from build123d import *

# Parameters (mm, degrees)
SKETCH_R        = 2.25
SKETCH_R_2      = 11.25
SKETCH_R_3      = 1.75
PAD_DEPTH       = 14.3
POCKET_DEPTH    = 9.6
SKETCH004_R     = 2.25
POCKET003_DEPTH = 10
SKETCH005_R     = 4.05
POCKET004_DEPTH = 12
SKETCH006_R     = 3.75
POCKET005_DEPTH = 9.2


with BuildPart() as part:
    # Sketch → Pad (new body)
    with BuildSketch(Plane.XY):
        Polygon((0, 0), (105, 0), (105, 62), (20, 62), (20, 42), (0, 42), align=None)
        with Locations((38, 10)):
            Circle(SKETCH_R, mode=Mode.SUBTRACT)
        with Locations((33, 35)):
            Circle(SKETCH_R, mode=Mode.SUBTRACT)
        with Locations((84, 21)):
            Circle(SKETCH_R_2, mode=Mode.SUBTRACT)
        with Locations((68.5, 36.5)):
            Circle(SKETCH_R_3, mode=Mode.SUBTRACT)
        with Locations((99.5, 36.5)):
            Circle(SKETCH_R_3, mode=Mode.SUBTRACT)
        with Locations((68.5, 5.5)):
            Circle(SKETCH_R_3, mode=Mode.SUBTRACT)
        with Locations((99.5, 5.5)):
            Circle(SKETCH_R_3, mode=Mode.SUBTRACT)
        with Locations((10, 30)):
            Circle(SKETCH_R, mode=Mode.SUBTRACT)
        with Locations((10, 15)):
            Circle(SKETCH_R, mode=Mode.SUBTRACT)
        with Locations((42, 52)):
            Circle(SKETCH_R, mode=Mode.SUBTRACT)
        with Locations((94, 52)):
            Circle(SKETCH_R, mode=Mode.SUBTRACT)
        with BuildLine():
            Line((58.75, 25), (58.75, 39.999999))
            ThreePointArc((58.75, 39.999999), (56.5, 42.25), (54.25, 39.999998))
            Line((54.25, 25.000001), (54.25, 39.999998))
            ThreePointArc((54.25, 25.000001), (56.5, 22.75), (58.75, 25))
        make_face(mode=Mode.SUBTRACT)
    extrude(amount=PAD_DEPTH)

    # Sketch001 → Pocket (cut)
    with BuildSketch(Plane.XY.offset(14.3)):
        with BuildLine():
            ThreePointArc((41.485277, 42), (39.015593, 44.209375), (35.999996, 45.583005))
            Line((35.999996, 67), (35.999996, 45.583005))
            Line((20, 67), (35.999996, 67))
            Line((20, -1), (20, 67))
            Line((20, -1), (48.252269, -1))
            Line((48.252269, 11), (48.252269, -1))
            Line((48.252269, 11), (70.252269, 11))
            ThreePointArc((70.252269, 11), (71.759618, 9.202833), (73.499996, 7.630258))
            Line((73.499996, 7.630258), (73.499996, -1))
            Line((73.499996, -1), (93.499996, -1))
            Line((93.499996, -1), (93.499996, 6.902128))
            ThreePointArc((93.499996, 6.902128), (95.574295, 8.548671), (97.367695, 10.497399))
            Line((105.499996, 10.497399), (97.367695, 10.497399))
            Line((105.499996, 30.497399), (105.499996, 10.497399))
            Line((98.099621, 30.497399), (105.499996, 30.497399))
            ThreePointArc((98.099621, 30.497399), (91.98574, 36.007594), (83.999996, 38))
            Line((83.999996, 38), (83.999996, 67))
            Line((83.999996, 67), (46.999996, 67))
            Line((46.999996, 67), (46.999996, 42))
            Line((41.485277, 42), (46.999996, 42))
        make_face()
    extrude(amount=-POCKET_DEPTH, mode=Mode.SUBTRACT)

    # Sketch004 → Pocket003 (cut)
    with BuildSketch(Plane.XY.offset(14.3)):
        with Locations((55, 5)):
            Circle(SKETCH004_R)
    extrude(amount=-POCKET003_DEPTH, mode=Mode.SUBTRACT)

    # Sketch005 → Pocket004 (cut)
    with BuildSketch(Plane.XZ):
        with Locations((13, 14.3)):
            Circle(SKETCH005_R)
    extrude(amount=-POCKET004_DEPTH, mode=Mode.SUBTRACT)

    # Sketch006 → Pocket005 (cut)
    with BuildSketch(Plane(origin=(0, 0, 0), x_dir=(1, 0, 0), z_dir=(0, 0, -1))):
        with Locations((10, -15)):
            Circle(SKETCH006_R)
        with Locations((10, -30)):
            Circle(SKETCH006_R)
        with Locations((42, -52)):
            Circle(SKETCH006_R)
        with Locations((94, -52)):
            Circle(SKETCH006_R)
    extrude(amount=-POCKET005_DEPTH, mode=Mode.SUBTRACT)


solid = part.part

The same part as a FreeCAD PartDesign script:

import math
import FreeCAD as App
import Part
import Sketcher
Q = App.Units.Quantity

doc = App.newDocument("Part")
body = doc.addObject("PartDesign::Body", "Body")

# Sketch on XY plane
sketch1 = doc.addObject("Sketcher::SketchObject", "Sketch")
body.addObject(sketch1)
sketch1.AttachmentSupport = (doc.XY_Plane, [""])
sketch1.MapMode = "FlatFace"
sketch1.addGeometry([
    Part.LineSegment(App.Vector(0, 0, 0), App.Vector(105, 0, 0)),  # 0
    Part.LineSegment(App.Vector(105, 0, 0), App.Vector(105, 62, 0)),  # 1
    Part.LineSegment(App.Vector(105, 62, 0), App.Vector(20, 62, 0)),  # 2
    Part.LineSegment(App.Vector(20, 62, 0), App.Vector(20, 42, 0)),  # 3
    Part.LineSegment(App.Vector(20, 42, 0), App.Vector(0, 42, 0)),  # 4
    Part.LineSegment(App.Vector(0, 42, 0), App.Vector(0, 0, 0)),  # 5
    Part.Circle(App.Vector(10, 15, 0), App.Vector(0, 0, 1), 2.2),  # 6
    Part.Circle(App.Vector(38, 10, 0), App.Vector(0, 0, 1), 2.2),  # 7
    Part.Circle(App.Vector(68.5, 5.5, 0), App.Vector(0, 0, 1), 1.8),  # 8
    Part.Circle(App.Vector(99.5, 5.5, 0), App.Vector(0, 0, 1), 1.8),  # 9
    Part.Circle(App.Vector(84, 21, 0), App.Vector(0, 0, 1), 11.2),  # 10
    Part.Circle(App.Vector(10, 30, 0), App.Vector(0, 0, 1), 2.2),  # 11
    Part.Circle(App.Vector(33, 35, 0), App.Vector(0, 0, 1), 2.2),  # 12
    Part.Circle(App.Vector(42, 52, 0), App.Vector(0, 0, 1), 2.2),  # 13
    Part.LineSegment(App.Vector(58.8, 40, 0), App.Vector(58.8, 25, 0)),  # 14
    Part.ArcOfCircle(Part.Circle(App.Vector(56.5, 25, 0), App.Vector(0, 0, 1), 2.2), math.radians(180), math.radians(360)),  # 15
    Part.LineSegment(App.Vector(54.2, 25, 0), App.Vector(54.2, 40, 0)),  # 16
    Part.ArcOfCircle(Part.Circle(App.Vector(56.5, 40, 0), App.Vector(0, 0, 1), 2.2), math.radians(0), math.radians(180)),  # 17
    Part.Circle(App.Vector(68.5, 36.5, 0), App.Vector(0, 0, 1), 1.8),  # 18
    Part.Circle(App.Vector(99.5, 36.5, 0), App.Vector(0, 0, 1), 1.8),  # 19
    Part.Circle(App.Vector(94, 52, 0), App.Vector(0, 0, 1), 2.2),  # 20
], False)
sketch1.addConstraint([
    Sketcher.Constraint("Coincident", 0, 2, 1, 1),
    Sketcher.Constraint("Coincident", 1, 2, 2, 1),
    Sketcher.Constraint("Coincident", 2, 2, 3, 1),
    Sketcher.Constraint("Coincident", 3, 2, 4, 1),
    Sketcher.Constraint("Coincident", 4, 2, 5, 1),
    Sketcher.Constraint("Coincident", 5, 2, 0, 1),
    Sketcher.Constraint("Tangent", 14, 2, 15, 2),
    Sketcher.Constraint("Tangent", 15, 1, 16, 1),
    Sketcher.Constraint("Tangent", 16, 2, 17, 2),
    Sketcher.Constraint("Tangent", 17, 1, 14, 1),
    Sketcher.Constraint("Horizontal", 0),
    Sketcher.Constraint("Vertical", 1),
    Sketcher.Constraint("Horizontal", 2),
    Sketcher.Constraint("Vertical", 3),
    Sketcher.Constraint("Horizontal", 4),
    Sketcher.Constraint("Vertical", 5),
    Sketcher.Constraint("Vertical", 14),
    Sketcher.Constraint("Vertical", 16),
    Sketcher.Constraint("Coincident", 5, 2, -1, 1),
    Sketcher.Constraint("Equal", 6, 7),
    Sketcher.Constraint("Equal", 8, 9),
    Sketcher.Constraint("Equal", 7, 11),
    Sketcher.Constraint("Equal", 11, 12),
    Sketcher.Constraint("Equal", 12, 13),
    Sketcher.Constraint("Equal", 13, 15),
    Sketcher.Constraint("Equal", 9, 18),
    Sketcher.Constraint("Equal", 18, 19),
    Sketcher.Constraint("Equal", 17, 20),
    Sketcher.Constraint("Horizontal", 8, 3, 9, 3),
    Sketcher.Constraint("Horizontal", 18, 3, 19, 3),
    Sketcher.Constraint("Horizontal", 13, 3, 20, 3),
    Sketcher.Constraint("Vertical", 6, 3, 11, 3),
    Sketcher.Constraint("Vertical", 8, 3, 18, 3),
    Sketcher.Constraint("Vertical", 9, 3, 19, 3),
    Sketcher.Constraint("Equal", 4, 3),
    Sketcher.Constraint("Diameter", 6, Q("4.5 mm")),
    Sketcher.Constraint("Diameter", 8, Q("3.5 mm")),
    Sketcher.Constraint("Diameter", 10, Q("22.5 mm")),
    Sketcher.Constraint("DistanceX", 0, 1, 0, 2, Q("105 mm")),
    Sketcher.Constraint("DistanceX", 2, 2, 2, 1, Q("85 mm")),
    Sketcher.Constraint("DistanceY", 1, 1, 1, 2, Q("62 mm")),
    Sketcher.Constraint("DistanceY", 14, 2, 14, 1, Q("14.999999 mm")),
    Sketcher.Constraint("DistanceX", -1, 1, 6, 3, Q("10 mm")),
    Sketcher.Constraint("DistanceY", -1, 1, 6, 3, Q("15 mm")),
    Sketcher.Constraint("DistanceX", -1, 1, 7, 3, Q("38 mm")),
    Sketcher.Constraint("DistanceY", -1, 1, 7, 3, Q("10 mm")),
    Sketcher.Constraint("DistanceX", -1, 1, 10, 3, Q("84 mm")),
    Sketcher.Constraint("DistanceY", -1, 1, 10, 3, Q("21 mm")),
    Sketcher.Constraint("DistanceY", -1, 1, 11, 3, Q("30 mm")),
    Sketcher.Constraint("DistanceX", -1, 1, 12, 3, Q("33 mm")),
    Sketcher.Constraint("DistanceY", -1, 1, 12, 3, Q("35 mm")),
    Sketcher.Constraint("DistanceX", -1, 1, 13, 3, Q("42 mm")),
    Sketcher.Constraint("DistanceY", -1, 1, 13, 3, Q("52 mm")),
    Sketcher.Constraint("DistanceY", -1, 1, 15, 3, Q("25 mm")),
    Sketcher.Constraint("DistanceX", -1, 1, 20, 3, Q("94 mm")),
    Sketcher.Constraint("DistanceX", 8, 3, 9, 3, Q("31 mm")),
    Sketcher.Constraint("DistanceX", 15, 3, 8, 3, Q("12 mm")),
    Sketcher.Constraint("DistanceY", 8, 3, 18, 3, Q("31 mm")),
    Sketcher.Constraint("DistanceX", -1, 1, 8, 3, Q("68.5 mm")),
    Sketcher.Constraint("DistanceY", -1, 1, 8, 3, Q("5.5 mm")),
])
pad1 = doc.addObject("PartDesign::Pad", "Pad")
body.addObject(pad1)
pad1.Profile = sketch1
pad1.Length = 14.3

# Sketch on XY plane
sketch2 = doc.addObject("Sketcher::SketchObject", "Sketch001")
body.addObject(sketch2)
sketch2.AttachmentSupport = (doc.XY_Plane, [""])
sketch2.MapMode = "FlatFace"
sketch2.AttachmentOffset = App.Placement(App.Vector(0, 0, 14.3), App.Rotation())
sketch2.addGeometry([
    Part.ArcOfCircle(Part.Circle(App.Vector(33, 35, 0), App.Vector(0, 0, 1), 11), math.radians(40), math.radians(74)),  # 0
    Part.LineSegment(App.Vector(36, 45.6, 0), App.Vector(36, 67, 0)),  # 1
    Part.LineSegment(App.Vector(36, 67, 0), App.Vector(20, 67, 0)),  # 2
    Part.LineSegment(App.Vector(20, 67, 0), App.Vector(20, -1, 0)),  # 3
    Part.LineSegment(App.Vector(20, -1, 0), App.Vector(48.3, -1, 0)),  # 4
    Part.LineSegment(App.Vector(48.3, -1, 0), App.Vector(48.3, 11, 0)),  # 5
    Part.LineSegment(App.Vector(48.3, 11, 0), App.Vector(70.3, 11, 0)),  # 6
    Part.ArcOfCircle(Part.Circle(App.Vector(84, 21, 0), App.Vector(0, 0, 1), 17), math.radians(-143.97), math.radians(-128.14)),  # 7
    Part.LineSegment(App.Vector(73.5, 7.6, 0), App.Vector(73.5, -1, 0)),  # 8
    Part.LineSegment(App.Vector(73.5, -1, 0), App.Vector(93.5, -1, 0)),  # 9
    Part.LineSegment(App.Vector(93.5, -1, 0), App.Vector(93.5, 6.9, 0)),  # 10
    Part.ArcOfCircle(Part.Circle(App.Vector(84, 21, 0), App.Vector(0, 0, 1), 17), math.radians(-56.03), math.radians(-38.16)),  # 11
    Part.LineSegment(App.Vector(97.4, 10.5, 0), App.Vector(105.5, 10.5, 0)),  # 12
    Part.LineSegment(App.Vector(105.5, 10.5, 0), App.Vector(105.5, 30.5, 0)),  # 13
    Part.LineSegment(App.Vector(105.5, 30.5, 0), App.Vector(98.1, 30.5, 0)),  # 14
    Part.ArcOfCircle(Part.Circle(App.Vector(84, 21, 0), App.Vector(0, 0, 1), 17), math.radians(34), math.radians(90)),  # 15
    Part.LineSegment(App.Vector(84, 38, 0), App.Vector(84, 67, 0)),  # 16
    Part.LineSegment(App.Vector(84, 67, 0), App.Vector(47, 67, 0)),  # 17
    Part.LineSegment(App.Vector(47, 67, 0), App.Vector(47, 42, 0)),  # 18
    Part.LineSegment(App.Vector(47, 42, 0), App.Vector(41.5, 42, 0)),  # 19
], False)
sketch2.addConstraint([
    Sketcher.Constraint("Coincident", 0, 2, 1, 1),
    Sketcher.Constraint("Coincident", 1, 2, 2, 1),
    Sketcher.Constraint("Coincident", 2, 2, 3, 1),
    Sketcher.Constraint("Coincident", 3, 2, 4, 1),
    Sketcher.Constraint("Coincident", 4, 2, 5, 1),
    Sketcher.Constraint("Coincident", 5, 2, 6, 1),
    Sketcher.Constraint("Coincident", 6, 2, 7, 1),
    Sketcher.Constraint("Coincident", 7, 2, 8, 1),
    Sketcher.Constraint("Coincident", 8, 2, 9, 1),
    Sketcher.Constraint("Coincident", 9, 2, 10, 1),
    Sketcher.Constraint("Coincident", 10, 2, 11, 1),
    Sketcher.Constraint("Coincident", 11, 2, 12, 1),
    Sketcher.Constraint("Coincident", 12, 2, 13, 1),
    Sketcher.Constraint("Coincident", 13, 2, 14, 1),
    Sketcher.Constraint("Coincident", 14, 2, 15, 1),
    Sketcher.Constraint("Coincident", 15, 2, 16, 1),
    Sketcher.Constraint("Coincident", 16, 2, 17, 1),
    Sketcher.Constraint("Coincident", 17, 2, 18, 1),
    Sketcher.Constraint("Coincident", 18, 2, 19, 1),
    Sketcher.Constraint("Coincident", 19, 2, 0, 1),
    Sketcher.Constraint("Vertical", 1),
    Sketcher.Constraint("Horizontal", 2),
    Sketcher.Constraint("Vertical", 3),
    Sketcher.Constraint("Horizontal", 4),
    Sketcher.Constraint("Vertical", 5),
    Sketcher.Constraint("Horizontal", 6),
    Sketcher.Constraint("Vertical", 8),
    Sketcher.Constraint("Horizontal", 9),
    Sketcher.Constraint("Vertical", 10),
    Sketcher.Constraint("Horizontal", 12),
    Sketcher.Constraint("Vertical", 13),
    Sketcher.Constraint("Horizontal", 14),
    Sketcher.Constraint("Vertical", 16),
    Sketcher.Constraint("Horizontal", 17),
    Sketcher.Constraint("Vertical", 18),
    Sketcher.Constraint("Horizontal", 19),
    Sketcher.Constraint("Coincident", 15, 3, 7, 3),
    Sketcher.Constraint("Horizontal", 4, 2, 8, 2),
    Sketcher.Constraint("Horizontal", 2, 2, 16, 2),
    Sketcher.Constraint("Equal", 9, 13),
    Sketcher.Constraint("Radius", 0, Q("10.999999 mm")),
    Sketcher.Constraint("DistanceX", 6, 1, 6, 2, Q("22 mm")),
    Sketcher.Constraint("DistanceX", 9, 1, 9, 2, Q("20 mm")),
    Sketcher.Constraint("DistanceX", 17, 2, 17, 1, Q("37 mm")),
    Sketcher.Constraint("DistanceY", 3, 2, 3, 1, Q("68 mm")),
    Sketcher.Constraint("DistanceY", 5, 1, 5, 2, Q("12 mm")),
    Sketcher.Constraint("DistanceY", 16, 1, 16, 2, Q("29 mm")),
    Sketcher.Constraint("DistanceY", 18, 2, 18, 1, Q("25 mm")),
    Sketcher.Constraint("DistanceY", -1, 1, 0, 3, Q("35.000001 mm")),
    Sketcher.Constraint("DistanceY", -1, 1, 1, 2, Q("67 mm")),
    Sketcher.Constraint("DistanceX", -1, 1, 2, 2, Q("20 mm")),
    Sketcher.Constraint("DistanceX", 0, 3, 0, 2, Q("3 mm")),
    Sketcher.Constraint("DistanceX", 10, 2, 12, 2, Q("12 mm")),
    Sketcher.Constraint("DistanceX", 1, 2, 17, 2, Q("11 mm")),
    Sketcher.Constraint("DistanceX", 15, 2, 13, 2, Q("21.5 mm")),
    Sketcher.Constraint("Radius", 7, Q("16.99999 mm")),
    Sketcher.Constraint("Radius", 11, Q("17.00002 mm")),
    Sketcher.Constraint("DistanceX", 12, 1, 12, 2, Q("8.132301 mm")),
    Sketcher.Constraint("Radius", 15, Q("17.000005 mm")),
    Sketcher.Constraint("DistanceX", 4, 1, 4, 2, Q("28.252269 mm")),
    Sketcher.Constraint("DistanceY", 8, 2, 8, 1, Q("8.630258 mm")),
    Sketcher.Constraint("DistanceY", 10, 1, 10, 2, Q("7.902128 mm")),
    Sketcher.Constraint("DistanceY", -1, 1, 11, 2, Q("10.497399 mm")),
])
pocket1 = doc.addObject("PartDesign::Pocket", "Pocket")
body.addObject(pocket1)
pocket1.Profile = sketch2
pocket1.Length = 9.6

# Sketch on XY plane
sketch3 = doc.addObject("Sketcher::SketchObject", "Sketch002")
body.addObject(sketch3)
sketch3.AttachmentSupport = (doc.XY_Plane, [""])
sketch3.MapMode = "FlatFace"
sketch3.AttachmentOffset = App.Placement(App.Vector(0, 0, 14.3), App.Rotation())
sketch3.addGeometry(Part.Circle(App.Vector(55, 5, 0), App.Vector(0, 0, 1), 2.2), False)
sketch3.addConstraint([
    Sketcher.Constraint("Diameter", 0, Q("4.5 mm")),
    Sketcher.Constraint("DistanceX", -1, 1, 0, 3, Q("55 mm")),
    Sketcher.Constraint("DistanceY", -1, 1, 0, 3, Q("5 mm")),
])
pocket2 = doc.addObject("PartDesign::Pocket", "Pocket001")
body.addObject(pocket2)
pocket2.Profile = sketch3
pocket2.Length = 10

# Sketch on XZ plane
sketch4 = doc.addObject("Sketcher::SketchObject", "Sketch003")
body.addObject(sketch4)
sketch4.AttachmentSupport = (doc.XZ_Plane, [""])
sketch4.MapMode = "FlatFace"
sketch4.addGeometry(Part.Circle(App.Vector(13, 14.3, 0), App.Vector(0, 0, 1), 4), False)
sketch4.addConstraint([
    Sketcher.Constraint("Diameter", 0, Q("8.1 mm")),
    Sketcher.Constraint("DistanceX", -1, 1, 0, 3, Q("13 mm")),
    Sketcher.Constraint("DistanceY", -1, 1, 0, 3, Q("14.3 mm")),
])
pocket3 = doc.addObject("PartDesign::Pocket", "Pocket002")
body.addObject(pocket3)
pocket3.Profile = sketch4
pocket3.Length = 12

# Sketch on XY plane
sketch5 = doc.addObject("Sketcher::SketchObject", "Sketch004")
body.addObject(sketch5)
sketch5.AttachmentSupport = (doc.XY_Plane, [""])
sketch5.MapMode = "FlatFace"
sketch5.addGeometry([
    Part.Circle(App.Vector(10, 15, 0), App.Vector(0, 0, 1), 3.8),
    Part.Circle(App.Vector(10, 30, 0), App.Vector(0, 0, 1), 3.8),
    Part.Circle(App.Vector(42, 52, 0), App.Vector(0, 0, 1), 3.8),
    Part.Circle(App.Vector(94, 52, 0), App.Vector(0, 0, 1), 3.8),
], False)
sketch5.addConstraint([
    Sketcher.Constraint("Equal", 0, 1),
    Sketcher.Constraint("Equal", 1, 2),
    Sketcher.Constraint("Equal", 2, 3),
    Sketcher.Constraint("Horizontal", 2, 3, 3, 3),
    Sketcher.Constraint("Vertical", 0, 3, 1, 3),
    Sketcher.Constraint("Diameter", 0, Q("7.5 mm")),
    Sketcher.Constraint("DistanceX", -1, 1, 0, 3, Q("10 mm")),
    Sketcher.Constraint("DistanceY", -1, 1, 0, 3, Q("15 mm")),
    Sketcher.Constraint("DistanceY", -1, 1, 1, 3, Q("30 mm")),
    Sketcher.Constraint("DistanceX", -1, 1, 2, 3, Q("42 mm")),
    Sketcher.Constraint("DistanceY", -1, 1, 2, 3, Q("52 mm")),
    Sketcher.Constraint("DistanceX", -1, 1, 3, 3, Q("94 mm")),
])
pocket4 = doc.addObject("PartDesign::Pocket", "Pocket003")
body.addObject(pocket4)
pocket4.Profile = sketch5
pocket4.Length = 9.2
pocket4.Reversed = True

doc.recompute()
